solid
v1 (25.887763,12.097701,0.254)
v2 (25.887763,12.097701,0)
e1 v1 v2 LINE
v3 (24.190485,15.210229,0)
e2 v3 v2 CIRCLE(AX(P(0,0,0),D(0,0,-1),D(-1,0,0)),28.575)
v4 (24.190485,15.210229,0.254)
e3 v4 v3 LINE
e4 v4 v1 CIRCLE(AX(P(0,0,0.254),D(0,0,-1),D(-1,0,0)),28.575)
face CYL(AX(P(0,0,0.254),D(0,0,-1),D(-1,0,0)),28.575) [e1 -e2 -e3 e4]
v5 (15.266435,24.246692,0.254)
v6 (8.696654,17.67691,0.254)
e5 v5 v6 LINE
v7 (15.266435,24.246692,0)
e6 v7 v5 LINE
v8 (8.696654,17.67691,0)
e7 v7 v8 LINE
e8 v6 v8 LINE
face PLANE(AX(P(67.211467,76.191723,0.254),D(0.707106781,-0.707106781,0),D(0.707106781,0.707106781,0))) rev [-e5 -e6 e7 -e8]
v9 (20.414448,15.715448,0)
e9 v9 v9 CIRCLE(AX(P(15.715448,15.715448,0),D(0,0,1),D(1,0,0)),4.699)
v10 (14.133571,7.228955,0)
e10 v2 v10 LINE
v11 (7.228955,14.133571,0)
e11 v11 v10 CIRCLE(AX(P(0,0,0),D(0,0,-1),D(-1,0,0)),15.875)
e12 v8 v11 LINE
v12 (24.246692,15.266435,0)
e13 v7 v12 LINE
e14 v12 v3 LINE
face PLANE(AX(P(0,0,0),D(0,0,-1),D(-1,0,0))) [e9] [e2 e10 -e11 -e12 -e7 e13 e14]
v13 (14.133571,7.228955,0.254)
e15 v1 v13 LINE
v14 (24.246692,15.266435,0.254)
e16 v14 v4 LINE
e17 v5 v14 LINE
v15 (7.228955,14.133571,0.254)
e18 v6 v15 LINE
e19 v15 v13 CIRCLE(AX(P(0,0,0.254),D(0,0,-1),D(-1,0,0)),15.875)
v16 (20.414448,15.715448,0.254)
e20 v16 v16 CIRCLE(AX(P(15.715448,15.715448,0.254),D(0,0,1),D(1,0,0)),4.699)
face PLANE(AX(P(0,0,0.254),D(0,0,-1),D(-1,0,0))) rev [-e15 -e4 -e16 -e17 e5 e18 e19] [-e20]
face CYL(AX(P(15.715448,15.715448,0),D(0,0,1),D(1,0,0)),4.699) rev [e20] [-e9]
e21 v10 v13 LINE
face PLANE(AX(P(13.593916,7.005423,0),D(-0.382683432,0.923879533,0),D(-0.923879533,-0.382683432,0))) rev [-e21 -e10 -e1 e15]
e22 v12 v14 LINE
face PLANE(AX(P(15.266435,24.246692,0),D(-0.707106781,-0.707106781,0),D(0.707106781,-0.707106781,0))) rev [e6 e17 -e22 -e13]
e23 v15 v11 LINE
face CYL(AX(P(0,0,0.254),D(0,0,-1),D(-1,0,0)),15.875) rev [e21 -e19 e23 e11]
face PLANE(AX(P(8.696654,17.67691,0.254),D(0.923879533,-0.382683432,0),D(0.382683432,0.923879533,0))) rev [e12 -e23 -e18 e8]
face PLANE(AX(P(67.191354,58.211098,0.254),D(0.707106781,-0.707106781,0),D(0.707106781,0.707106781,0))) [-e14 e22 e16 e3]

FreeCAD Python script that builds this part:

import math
import FreeCAD as App
import Part
import Sketcher
from FreeCAD import Vector
Q = App.Units.Quantity

doc = App.newDocument("Part")
body = doc.addObject("PartDesign::Body", "Body")

# Sketch on XY plane
sketch1 = body.newObject("Sketcher::SketchObject", "Sketch")
sketch1.AttachmentSupport = (doc.getObject("XY_Plane"), [""])
sketch1.MapMode = "FlatFace"
sketch1.addGeometry(Part.LineSegment(Vector(67.2, 76.2, 0), Vector(8.7, 17.7, 0)), False)
sketch1.addGeometry(Part.LineSegment(Vector(8.7, 17.7, 0), Vector(7.2, 14.1, 0)), False)
sketch1.addGeometry(Part.ArcOfCircle(Part.Circle(Vector(0, 0, 0), Vector(0, 0, 1), 15.9), math.radians(-18), math.radians(63)), False)
sketch1.addGeometry(Part.LineSegment(Vector(15.1, -4.9, 0), Vector(18.6, -6.3, 0)), False)
sketch1.addGeometry(Part.LineSegment(Vector(18.6, -6.3, 0), Vector(101.4, -6.3, 0)), False)
sketch1.addGeometry(Part.ArcOfCircle(Part.Circle(Vector(0, 0, 0), Vector(0, 0, 1), 101.6), math.radians(-4), math.radians(49)), False)
sketch1.addGeometry(Part.ArcOfCircle(Part.Circle(Vector(0, 0, 0), Vector(0, 0, 1), 88.9), math.radians(4), math.radians(41)), False)
sketch1.addGeometry(Part.LineSegment(Vector(88.7, 6.3, 0), Vector(27.9, 6.3, 0)), False)
sketch1.addGeometry(Part.ArcOfCircle(Part.Circle(Vector(0, 0, 0), Vector(0, 0, 1), 28.6), math.radians(12.84), math.radians(32.16)), False)
sketch1.addGeometry(Part.LineSegment(Vector(24.2, 15.2, 0), Vector(67.2, 58.2, 0)), False)
sketch1.addConstraint(Sketcher.Constraint("Coincident", 0, 2, 1, 1))
sketch1.addConstraint(Sketcher.Constraint("Coincident", 1, 2, 2, 2))
sketch1.addConstraint(Sketcher.Constraint("Coincident", 2, 1, 3, 1))
sketch1.addConstraint(Sketcher.Constraint("Coincident", 3, 2, 4, 1))
sketch1.addConstraint(Sketcher.Constraint("Coincident", 4, 2, 5, 1))
sketch1.addConstraint(Sketcher.Constraint("Coincident", 5, 2, 0, 1))
sketch1.addConstraint(Sketcher.Constraint("Coincident", 6, 1, 7, 1))
sketch1.addConstraint(Sketcher.Constraint("Coincident", 7, 2, 8, 1))
sketch1.addConstraint(Sketcher.Constraint("Coincident", 8, 2, 9, 1))
sketch1.addConstraint(Sketcher.Constraint("Coincident", 9, 2, 6, 2))
sketch1.addConstraint(Sketcher.Constraint("Horizontal", 4))
sketch1.addConstraint(Sketcher.Constraint("Horizontal", 7))
sketch1.addConstraint(Sketcher.Constraint("Coincident", 2, 3, -1, 1))
sketch1.addConstraint(Sketcher.Constraint("Coincident", 5, 3, -1, 1))
sketch1.addConstraint(Sketcher.Constraint("Coincident", 6, 3, -1, 1))
sketch1.addConstraint(Sketcher.Constraint("Coincident", 8, 3, -1, 1))
sketch1.addConstraint(Sketcher.Constraint("Perpendicular", 1, 3))
sketch1.addConstraint(Sketcher.Constraint("Parallel", 0, 9))
sketch1.addConstraint(Sketcher.Constraint("Equal", 1, 3))
sketch1.addConstraint(Sketcher.Constraint("Radius", 5, Q("4 in")))
sketch1.addConstraint(Sketcher.Constraint("Radius", 6, Q("3.5 in")))
sketch1.addConstraint(Sketcher.Constraint("Angle", 0, Q("-135 deg")))
sketch1.addConstraint(Sketcher.Constraint("Radius", 2, Q("0.625 in")))
sketch1.addConstraint(Sketcher.Constraint("Radius", 8, Q("1.125 in")))
sketch1.addConstraint(Sketcher.Constraint("Angle", 1, Q("-112.5 deg")))
sketch1.addConstraint(Sketcher.Constraint("DistanceY", 4, 2, 6, 1, Q("0.5 in")))
sketch1.addConstraint(Sketcher.Constraint("DistanceY", 3, 2, -1, 1, Q("0.25 in")))
sketch1.addConstraint(Sketcher.Constraint("DistanceY", 2, 1, -1, 1, 4.882301))
sketch1.addConstraint(Sketcher.Constraint("DistanceY", -1, 1, 9, 2, 58.211098))
sketch1.addConstraint(Sketcher.Constraint("DistanceX", 5, 2, 4, 2, 34.189901))
pad1 = body.newObject("PartDesign::Pad", "Pad")
pad1.Profile = sketch1
pad1.Length = Q("0.01 in")

# Sketch on XY plane
sketch2 = body.newObject("Sketcher::SketchObject", "Sketch001")
sketch2.AttachmentSupport = (doc.getObject("XY_Plane"), [""])
sketch2.MapMode = "FlatFace"
sketch2.AttachmentOffset = App.Placement(Vector(0, 0, 0.01 * 25.4), App.Rotation())
sketch2.addGeometry(Part.Circle(Vector(22.2, 0, 0), Vector(0, 0, 1), 4.7), False)
sketch2.addGeometry(Part.Circle(Vector(36.2, 0, 0), Vector(0, 0, 1), 4.7), False)
sketch2.addGeometry(Part.Circle(Vector(61.7, 0, 0), Vector(0, 0, 1), 4.7), False)
sketch2.addGeometry(Part.Circle(Vector(75.7, 0, 0), Vector(0, 0, 1), 4.7), False)
sketch2.addGeometry(Part.Circle(Vector(95.2, 0, 0), Vector(0, 0, 1), 4.7), False)
sketch2.addGeometry(Part.Circle(Vector(15.7, 15.7, 0), Vector(0, 0, 1), 4.7), False)
sketch2.addGeometry(Part.Circle(Vector(25.6, 25.6, 0), Vector(0, 0, 1), 4.7), False)
sketch2.addGeometry(Part.Circle(Vector(43.6, 43.6, 0), Vector(0, 0, 1), 4.7), False)
sketch2.addGeometry(Part.Circle(Vector(53.5, 53.5, 0), Vector(0, 0, 1), 4.7), False)
sketch2.addGeometry(Part.Circle(Vector(92, 24.7, 0), Vector(0, 0, 1), 4.7), False)
sketch2.addGeometry(Part.Circle(Vector(82.5, 47.6, 0), Vector(0, 0, 1), 4.7), False)
sketch2.addGeometry(Part.Circle(Vector(67.4, 67.4, 0), Vector(0, 0, 1), 4.7), False)
sketch2.addConstraint(Sketcher.Constraint("Equal", 0, 1))
sketch2.addConstraint(Sketcher.Constraint("Equal", 1, 2))
sketch2.addConstraint(Sketcher.Constraint("Equal", 2, 3))
sketch2.addConstraint(Sketcher.Constraint("Equal", 3, 4))
sketch2.addConstraint(Sketcher.Constraint("Equal", 4, 5))
sketch2.addConstraint(Sketcher.Constraint("Equal", 5, 6))
sketch2.addConstraint(Sketcher.Constraint("Equal", 6, 7))
sketch2.addConstraint(Sketcher.Constraint("Equal", 7, 8))
sketch2.addConstraint(Sketcher.Constraint("Equal", 8, 9))
sketch2.addConstraint(Sketcher.Constraint("Equal", 9, 10))
sketch2.addConstraint(Sketcher.Constraint("Equal", 10, 11))
sketch2.addConstraint(Sketcher.Constraint("PointOnObject", 0, 3, -1))
sketch2.addConstraint(Sketcher.Constraint("PointOnObject", 1, 3, -1))
sketch2.addConstraint(Sketcher.Constraint("PointOnObject", 2, 3, -1))
sketch2.addConstraint(Sketcher.Constraint("PointOnObject", 3, 3, -1))
sketch2.addConstraint(Sketcher.Constraint("PointOnObject", 4, 3, -1))
sketch2.addConstraint(Sketcher.Constraint("Diameter", 0, Q("0.37 in")))
sketch2.addConstraint(Sketcher.Constraint("DistanceX", -1, 1, 2, 3, Q("2.43 in")))
sketch2.addConstraint(Sketcher.Constraint("DistanceX", -1, 1, 3, 3, Q("2.98 in")))
sketch2.addConstraint(Sketcher.Constraint("DistanceX", -1, 1, 4, 3, Q("3.75 in")))
sketch2.addConstraint(Sketcher.Constraint("DistanceX", 0, 3, 1, 3, Q("0.55 in")))
sketch2.addConstraint(Sketcher.Constraint("DistanceX", -1, 1, 0, 3, Q("0.875 in")))
sketch2.addConstraint(Sketcher.Constraint("DistanceY", -1, 1, 10, 3, Q("1.875 in")))
sketch2.addConstraint(Sketcher.Constraint("DistanceX", 11, 3, 10, 3, 15.136999))
sketch2.addConstraint(Sketcher.Constraint("DistanceX", -1, 1, 5, 3, 15.715448))
sketch2.addConstraint(Sketcher.Constraint("DistanceY", -1, 1, 5, 3, 15.715448))
sketch2.addConstraint(Sketcher.Constraint("DistanceX", -1, 1, 6, 3, 25.59373))
sketch2.addConstraint(Sketcher.Constraint("DistanceY", -1, 1, 6, 3, 25.59373))
sketch2.addConstraint(Sketcher.Constraint("DistanceX", -1, 1, 10, 3, 82.48892))
sketch2.addConstraint(Sketcher.Constraint("DistanceY", -1, 1, 11, 3, 67.351921))
sketch2.addConstraint(Sketcher.Constraint("DistanceX", 7, 3, 8, 3, 9.878282))
sketch2.addConstraint(Sketcher.Constraint("DistanceY", 7, 3, 8, 3, 9.878282))
sketch2.addConstraint(Sketcher.Constraint("DistanceX", 5, 3, 8, 3, 37.806878))
sketch2.addConstraint(Sketcher.Constraint("DistanceY", 5, 3, 8, 3, 37.806878))
sketch2.addConstraint(Sketcher.Constraint("DistanceX", 8, 3, 9, 3, 38.482108))
sketch2.addConstraint(Sketcher.Constraint("DistanceY", 9, 3, 7, 3, 18.991531))
pocket1 = body.newObject("PartDesign::Pocket", "Pocket")
pocket1.Profile = sketch2
pocket1.Type = "ThroughAll"

# Sketch on XY plane
sketch3 = body.newObject("Sketcher::SketchObject", "Sketch002")
sketch3.AttachmentSupport = (doc.getObject("XY_Plane"), [""])
sketch3.MapMode = "FlatFace"
sketch3.AttachmentOffset = App.Placement(Vector(0, 0, 0.01 * 25.4), App.Rotation())
sketch3.addGeometry(Part.LineSegment(Vector(17.1, 26, 0), Vector(15.3, 24.2, 0)), False)
sketch3.addGeometry(Part.LineSegment(Vector(15.3, 24.2, 0), Vector(15.7, 23.8, 0)), False)
sketch3.addGeometry(Part.LineSegment(Vector(15.7, 23.8, 0), Vector(17.5, 25.6, 0)), False)
sketch3.addGeometry(Part.LineSegment(Vector(17.5, 25.6, 0), Vector(17.1, 26, 0)), False)
sketch3.addGeometry(Part.LineSegment(Vector(45, 54, 0), Vector(43.2, 52.2, 0)), False)
sketch3.addGeometry(Part.LineSegment(Vector(43.2, 52.2, 0), Vector(43.6, 51.7, 0)), False)
sketch3.addGeometry(Part.LineSegment(Vector(43.6, 51.7, 0), Vector(45.4, 53.5, 0)), False)
sketch3.addGeometry(Part.LineSegment(Vector(45.4, 53.5, 0), Vector(45, 54, 0)), False)
sketch3.addGeometry(Part.LineSegment(Vector(27.9, -5.7, 0), Vector(27.9, -6.3, 0)), False)
sketch3.addGeometry(Part.LineSegment(Vector(27.9, -6.3, 0), Vector(30.5, -6.3, 0)), False)
sketch3.addGeometry(Part.LineSegment(Vector(30.5, -6.3, 0), Vector(30.5, -5.7, 0)), False)
sketch3.addGeometry(Part.LineSegment(Vector(30.5, -5.7, 0), Vector(27.9, -5.7, 0)), False)
sketch3.addGeometry(Part.LineSegment(Vector(67.4, -5.7, 0), Vector(67.4, -6.3, 0)), False)
sketch3.addGeometry(Part.LineSegment(Vector(67.4, -6.3, 0), Vector(70, -6.3, 0)), False)
sketch3.addGeometry(Part.LineSegment(Vector(70, -6.3, 0), Vector(70, -5.7, 0)), False)
sketch3.addGeometry(Part.LineSegment(Vector(70, -5.7, 0), Vector(67.4, -5.7, 0)), False)
sketch3.addGeometry(Part.LineSegment(Vector(31, 40, 0), Vector(29.2, 38.2, 0)), False)
sketch3.addGeometry(Part.LineSegment(Vector(29.2, 38.2, 0), Vector(29.7, 37.8, 0)), False)
sketch3.addGeometry(Part.LineSegment(Vector(29.7, 37.8, 0), Vector(31.5, 39.6, 0)), False)
sketch3.addGeometry(Part.LineSegment(Vector(31.5, 39.6, 0), Vector(31, 40, 0)), False)
sketch3.addGeometry(Part.LineSegment(Vector(56.8, 65.8, 0), Vector(55, 64, 0)), False)
sketch3.addGeometry(Part.LineSegment(Vector(55, 64, 0), Vector(55.5, 63.6, 0)), False)
sketch3.addGeometry(Part.LineSegment(Vector(55.5, 63.6, 0), Vector(57.3, 65.4, 0)), False)
sketch3.addGeometry(Part.LineSegment(Vector(57.3, 65.4, 0), Vector(56.8, 65.8, 0)), False)
sketch3.addGeometry(Part.LineSegment(Vector(47.7, -5.7, 0), Vector(47.7, -6.3, 0)), False)
sketch3.addGeometry(Part.LineSegment(Vector(47.7, -6.3, 0), Vector(50.2, -6.3, 0)), False)
sketch3.addGeometry(Part.LineSegment(Vector(50.2, -6.3, 0), Vector(50.2, -5.7, 0)), False)
sketch3.addGeometry(Part.LineSegment(Vector(50.2, -5.7, 0), Vector(47.7, -5.7, 0)), False)
sketch3.addGeometry(Part.LineSegment(Vector(84.2, -5.7, 0), Vector(84.2, -6.3, 0)), False)
sketch3.addGeometry(Part.LineSegment(Vector(84.2, -6.3, 0), Vector(86.7, -6.3, 0)), False)
sketch3.addGeometry(Part.LineSegment(Vector(86.7, -6.3, 0), Vector(86.7, -5.7, 0)), False)
sketch3.addGeometry(Part.LineSegment(Vector(86.7, -5.7, 0), Vector(84.2, -5.7, 0)), False)
sketch3.addGeometry(Part.LineSegment(Vector(99.9, 14.4, 0), Vector(100.3, 11.9, 0)), False)
sketch3.addGeometry(Part.LineSegment(Vector(100.3, 11.9, 0), Vector(101.5, 12.1, 0)), False)
sketch3.addGeometry(Part.LineSegment(Vector(101.5, 12.1, 0), Vector(101.2, 14.6, 0)), False)
sketch3.addGeometry(Part.LineSegment(Vector(101.2, 14.6, 0), Vector(99.9, 14.4, 0)), False)
sketch3.addGeometry(Part.LineSegment(Vector(93.8, 37.5, 0), Vector(94.9, 38, 0)), False)
sketch3.addGeometry(Part.LineSegment(Vector(94.9, 38, 0), Vector(94, 40.3, 0)), False)
sketch3.addGeometry(Part.LineSegment(Vector(94, 40.3, 0), Vector(92.8, 39.8, 0)), False)
sketch3.addGeometry(Part.LineSegment(Vector(92.8, 39.8, 0), Vector(93.8, 37.5, 0)), False)
sketch3.addGeometry(Part.LineSegment(Vector(79.3, 62.5, 0), Vector(80.9, 60.5, 0)), False)
sketch3.addGeometry(Part.LineSegment(Vector(80.9, 60.5, 0), Vector(81.9, 61.2, 0)), False)
sketch3.addGeometry(Part.LineSegment(Vector(81.9, 61.2, 0), Vector(80.3, 63.2, 0)), False)
sketch3.addGeometry(Part.LineSegment(Vector(80.3, 63.2, 0), Vector(79.3, 62.5, 0)), False)
sketch3.addGeometry(Part.LineSegment(Vector(13.6, 7, 0), Vector(14.6, 4.7, 0)), False)
sketch3.addGeometry(Part.LineSegment(Vector(14.6, 4.7, 0), Vector(15.7, 5.1, 0)), False)
sketch3.addGeometry(Part.LineSegment(Vector(15.7, 5.1, 0), Vector(14.8, 7.5, 0)), False)
sketch3.addGeometry(Part.LineSegment(Vector(14.8, 7.5, 0), Vector(13.6, 7, 0)), False)
sketch3.addConstraint(Sketcher.Constraint("Coincident", 0, 2, 1, 1))
sketch3.addConstraint(Sketcher.Constraint("Coincident", 1, 2, 2, 1))
sketch3.addConstraint(Sketcher.Constraint("Coincident", 2, 2, 3, 1))
sketch3.addConstraint(Sketcher.Constraint("Coincident", 3, 2, 0, 1))
sketch3.addConstraint(Sketcher.Constraint("Coincident", 4, 2, 5, 1))
sketch3.addConstraint(Sketcher.Constraint("Coincident", 5, 2, 6, 1))
sketch3.addConstraint(Sketcher.Constraint("Coincident", 6, 2, 7, 1))
sketch3.addConstraint(Sketcher.Constraint("Coincident", 7, 2, 4, 1))
sketch3.addConstraint(Sketcher.Constraint("Coincident", 8, 2, 9, 1))
sketch3.addConstraint(Sketcher.Constraint("Coincident", 9, 2, 10, 1))
sketch3.addConstraint(Sketcher.Constraint("Coincident", 10, 2, 11, 1))
sketch3.addConstraint(Sketcher.Constraint("Coincident", 11, 2, 8, 1))
sketch3.addConstraint(Sketcher.Constraint("Coincident", 12, 2, 13, 1))
sketch3.addConstraint(Sketcher.Constraint("Coincident", 13, 2, 14, 1))
sketch3.addConstraint(Sketcher.Constraint("Coincident", 14, 2, 15, 1))
sketch3.addConstraint(Sketcher.Constraint("Coincident", 15, 2, 12, 1))
sketch3.addConstraint(Sketcher.Constraint("Coincident", 16, 2, 17, 1))
sketch3.addConstraint(Sketcher.Constraint("Coincident", 17, 2, 18, 1))
sketch3.addConstraint(Sketcher.Constraint("Coincident", 18, 2, 19, 1))
sketch3.addConstraint(Sketcher.Constraint("Coincident", 19, 2, 16, 1))
sketch3.addConstraint(Sketcher.Constraint("Coincident", 20, 2, 21, 1))
sketch3.addConstraint(Sketcher.Constraint("Coincident", 21, 2, 22, 1))
sketch3.addConstraint(Sketcher.Constraint("Coincident", 22, 2, 23, 1))
sketch3.addConstraint(Sketcher.Constraint("Coincident", 23, 2, 20, 1))
sketch3.addConstraint(Sketcher.Constraint("Coincident", 24, 2, 25, 1))
sketch3.addConstraint(Sketcher.Constraint("Coincident", 25, 2, 26, 1))
sketch3.addConstraint(Sketcher.Constraint("Coincident", 26, 2, 27, 1))
sketch3.addConstraint(Sketcher.Constraint("Coincident", 27, 2, 24, 1))
sketch3.addConstraint(Sketcher.Constraint("Coincident", 28, 2, 29, 1))
sketch3.addConstraint(Sketcher.Constraint("Coincident", 29, 2, 30, 1))
sketch3.addConstraint(Sketcher.Constraint("Coincident", 30, 2, 31, 1))
sketch3.addConstraint(Sketcher.Constraint("Coincident", 31, 2, 28, 1))
sketch3.addConstraint(Sketcher.Constraint("Coincident", 32, 2, 33, 1))
sketch3.addConstraint(Sketcher.Constraint("Coincident", 33, 2, 34, 1))
sketch3.addConstraint(Sketcher.Constraint("Coincident", 34, 2, 35, 1))
sketch3.addConstraint(Sketcher.Constraint("Coincident", 35, 2, 32, 1))
sketch3.addConstraint(Sketcher.Constraint("Coincident", 36, 2, 37, 1))
sketch3.addConstraint(Sketcher.Constraint("Coincident", 37, 2, 38, 1))
sketch3.addConstraint(Sketcher.Constraint("Coincident", 38, 2, 39, 1))
sketch3.addConstraint(Sketcher.Constraint("Coincident", 39, 2, 36, 1))
sketch3.addConstraint(Sketcher.Constraint("Coincident", 40, 2, 41, 1))
sketch3.addConstraint(Sketcher.Constraint("Coincident", 41, 2, 42, 1))
sketch3.addConstraint(Sketcher.Constraint("Coincident", 42, 2, 43, 1))
sketch3.addConstraint(Sketcher.Constraint("Coincident", 43, 2, 40, 1))
sketch3.addConstraint(Sketcher.Constraint("Coincident", 44, 2, 45, 1))
sketch3.addConstraint(Sketcher.Constraint("Coincident", 45, 2, 46, 1))
sketch3.addConstraint(Sketcher.Constraint("Coincident", 46, 2, 47, 1))
sketch3.addConstraint(Sketcher.Constraint("Coincident", 47, 2, 44, 1))
sketch3.addConstraint(Sketcher.Constraint("Vertical", 8))
sketch3.addConstraint(Sketcher.Constraint("Horizontal", 9))
sketch3.addConstraint(Sketcher.Constraint("Vertical", 10))
sketch3.addConstraint(Sketcher.Constraint("Horizontal", 11))
sketch3.addConstraint(Sketcher.Constraint("Vertical", 12))
sketch3.addConstraint(Sketcher.Constraint("Horizontal", 13))
sketch3.addConstraint(Sketcher.Constraint("Vertical", 14))
sketch3.addConstraint(Sketcher.Constraint("Horizontal", 15))
sketch3.addConstraint(Sketcher.Constraint("Vertical", 24))
sketch3.addConstraint(Sketcher.Constraint("Horizontal", 25))
sketch3.addConstraint(Sketcher.Constraint("Vertical", 26))
sketch3.addConstraint(Sketcher.Constraint("Horizontal", 27))
sketch3.addConstraint(Sketcher.Constraint("Vertical", 28))
sketch3.addConstraint(Sketcher.Constraint("Horizontal", 29))
sketch3.addConstraint(Sketcher.Constraint("Vertical", 30))
sketch3.addConstraint(Sketcher.Constraint("Horizontal", 31))
sketch3.addConstraint(Sketcher.Constraint("Perpendicular", 0, 1))
sketch3.addConstraint(Sketcher.Constraint("Perpendicular", 1, 2))
sketch3.addConstraint(Sketcher.Constraint("Perpendicular", 2, 3))
sketch3.addConstraint(Sketcher.Constraint("Perpendicular", 3, 4))
sketch3.addConstraint(Sketcher.Constraint("Perpendicular", 4, 5))
sketch3.addConstraint(Sketcher.Constraint("Perpendicular", 5, 6))
sketch3.addConstraint(Sketcher.Constraint("Perpendicular", 6, 7))
sketch3.addConstraint(Sketcher.Constraint("Perpendicular", 7, 16))
sketch3.addConstraint(Sketcher.Constraint("Perpendicular", 16, 17))
sketch3.addConstraint(Sketcher.Constraint("Perpendicular", 17, 18))
sketch3.addConstraint(Sketcher.Constraint("Perpendicular", 18, 19))
sketch3.addConstraint(Sketcher.Constraint("Perpendicular", 19, 20))
sketch3.addConstraint(Sketcher.Constraint("Perpendicular", 20, 21))
sketch3.addConstraint(Sketcher.Constraint("Perpendicular", 21, 22))
sketch3.addConstraint(Sketcher.Constraint("Perpendicular", 22, 23))
sketch3.addConstraint(Sketcher.Constraint("Perpendicular", 32, 33))
sketch3.addConstraint(Sketcher.Constraint("Perpendicular", 33, 34))
sketch3.addConstraint(Sketcher.Constraint("Perpendicular", 34, 35))
sketch3.addConstraint(Sketcher.Constraint("Perpendicular", 36, 37))
sketch3.addConstraint(Sketcher.Constraint("Perpendicular", 37, 38))
sketch3.addConstraint(Sketcher.Constraint("Perpendicular", 38, 39))
sketch3.addConstraint(Sketcher.Constraint("Perpendicular", 40, 41))
sketch3.addConstraint(Sketcher.Constraint("Perpendicular", 41, 42))
sketch3.addConstraint(Sketcher.Constraint("Perpendicular", 42, 43))
sketch3.addConstraint(Sketcher.Constraint("Parallel", 39, 44))
sketch3.addConstraint(Sketcher.Constraint("Perpendicular", 44, 45))
sketch3.addConstraint(Sketcher.Constraint("Perpendicular", 45, 46))
sketch3.addConstraint(Sketcher.Constraint("Perpendicular", 46, 47))
sketch3.addConstraint(Sketcher.Constraint("Horizontal", 9, 2, 12, 2))
sketch3.addConstraint(Sketcher.Constraint("Horizontal", 11, 2, 14, 2))
sketch3.addConstraint(Sketcher.Constraint("Horizontal", 13, 2, 24, 2))
sketch3.addConstraint(Sketcher.Constraint("Horizontal", 15, 2, 26, 2))
sketch3.addConstraint(Sketcher.Constraint("Horizontal", 25, 2, 28, 2))
sketch3.addConstraint(Sketcher.Constraint("Horizontal", 27, 2, 30, 2))
sketch3.addConstraint(Sketcher.Constraint("Equal", 11, 13))
sketch3.addConstraint(Sketcher.Constraint("Equal", 15, 25))
sketch3.addConstraint(Sketcher.Constraint("Equal", 27, 29))
sketch3.addConstraint(Sketcher.Constraint("Equal", 2, 4))
sketch3.addConstraint(Sketcher.Constraint("Equal", 3, 5))
sketch3.addConstraint(Sketcher.Constraint("Equal", 6, 16))
sketch3.addConstraint(Sketcher.Constraint("Equal", 7, 17))
sketch3.addConstraint(Sketcher.Constraint("Equal", 18, 20))
sketch3.addConstraint(Sketcher.Constraint("Equal", 19, 21))
sketch3.addConstraint(Sketcher.Constraint("Equal", 22, 32))
sketch3.addConstraint(Sketcher.Constraint("Equal", 35, 36))
sketch3.addConstraint(Sketcher.Constraint("Equal", 34, 37))
sketch3.addConstraint(Sketcher.Constraint("Equal", 39, 40))
sketch3.addConstraint(Sketcher.Constraint("Equal", 38, 41))
sketch3.addConstraint(Sketcher.Constraint("Equal", 42, 44))
sketch3.addConstraint(Sketcher.Constraint("Equal", 43, 45))
sketch3.addConstraint(Sketcher.Constraint("DistanceX", 9, 1, 9, 2, Q("0.1 in")))
sketch3.addConstraint(Sketcher.Constraint("Angle", 0, Q("-135 deg")))
sketch3.addConstraint(Sketcher.Constraint("Distance", 0, Q("0.1 in")))
sketch3.addConstraint(Sketcher.Constraint("DistanceX", -1, 1, 8, 2, Q("1.1 in")))
sketch3.addConstraint(Sketcher.Constraint("Angle", 32, Q("-82.5 deg")))
sketch3.addConstraint(Sketcher.Constraint("Angle", 36, Q("22.5 deg")))
sketch3.addConstraint(Sketcher.Constraint("Angle", 40, Q("-52.5 deg")))
sketch3.addConstraint(Sketcher.Constraint("Distance", 33, Q("0.05 in")))
sketch3.addConstraint(Sketcher.Constraint("DistanceY", 8, 2, 8, 1, Q("0.025 in")))
sketch3.addConstraint(Sketcher.Constraint("DistanceY", 8, 2, -1, 1, Q("0.25 in")))
sketch3.addConstraint(Sketcher.Constraint("DistanceX", 13, 2, 28, 2, Q("0.56 in")))
sketch3.addConstraint(Sketcher.Constraint("Distance", 1, Q("0.025 in")))
sketch3.addConstraint(Sketcher.Constraint("DistanceX", -1, 1, 12, 2, Q("2.655 in")))
sketch3.addConstraint(Sketcher.Constraint("DistanceX", -1, 1, 24, 2, Q("1.8775 in")))
sketch3.addConstraint(Sketcher.Constraint("DistanceX", -1, 1, 2, 2, 17.511499))
sketch3.addConstraint(Sketcher.Constraint("DistanceX", -1, 1, 32, 2, 100.266999))
sketch3.addConstraint(Sketcher.Constraint("DistanceX", 16, 2, 4, 2, 13.964298))
sketch3.addConstraint(Sketcher.Constraint("DistanceY", 16, 2, 4, 2, 13.964298))
sketch3.addConstraint(Sketcher.Constraint("DistanceX", 0, 2, 16, 2, 13.964298))
sketch3.addConstraint(Sketcher.Constraint("DistanceY", 0, 2, 16, 2, 13.964298))
sketch3.addConstraint(Sketcher.Constraint("DistanceY", 6, 2, 20, 2, 10.5069))
sketch3.addConstraint(Sketcher.Constraint("DistanceX", 7, 2, 21, 2, 10.5069))
sketch3.addConstraint(Sketcher.Constraint("DistanceY", 35, 2, 36, 2, 23.512602))
sketch3.addConstraint(Sketcher.Constraint("DistanceX", 36, 2, 33, 2, 6.587302))
sketch3.addConstraint(Sketcher.Constraint("DistanceY", 37, 2, 41, 2, 20.932198))
sketch3.addConstraint(Sketcher.Constraint("DistanceY", 41, 2, 22, 2, 4.147099))
sketch3.addConstraint(Sketcher.Constraint("DistanceY", 46, 2, 2, 2, 18.102299))
sketch3.addConstraint(Sketcher.Constraint("DistanceY", -1, 1, 0, 2, 24.246692))
sketch3.addConstraint(Sketcher.Constraint("DistanceX", -1, 1, 42, 2, 80.335352))
sketch3.addConstraint(Sketcher.Constraint("DistanceX", -1, 1, 45, 2, 15.739259))
pocket2 = body.newObject("PartDesign::Pocket", "Pocket001")
pocket2.Profile = sketch3
pocket2.Type = "ThroughAll"

# Sketch on XY plane
sketch4 = body.newObject("Sketcher::SketchObject", "Sketch003")
sketch4.AttachmentSupport = (doc.getObject("XY_Plane"), [""])
sketch4.MapMode = "FlatFace"
sketch4.AttachmentOffset = App.Placement(Vector(0, 0, 0.01 * 25.4), App.Rotation())
sketch4.addGeometry(Part.LineSegment(Vector(-6, 90, 0), Vector(-6, -20, 0)), False)
sketch4.addGeometry(Part.LineSegment(Vector(-6, -20, 0), Vector(115, -20, 0)), False)
sketch4.addGeometry(Part.LineSegment(Vector(115, -20, 0), Vector(115, 90, 0)), False)
sketch4.addGeometry(Part.LineSegment(Vector(115, 90, 0), Vector(-6, 90, 0)), False)
sketch4.addGeometry(Part.LineSegment(Vector(27, 13, 0), Vector(8, 5, 0)), False)
sketch4.addGeometry(Part.LineSegment(Vector(8, 5, 0), Vector(-1, 14, 0)), False)
sketch4.addGeometry(Part.LineSegment(Vector(-1, 14, 0), Vector(13, 27, 0)), False)
sketch4.addGeometry(Part.LineSegment(Vector(13, 27, 0), Vector(27, 13, 0)), False)
sketch4.addConstraint(Sketcher.Constraint("Coincident", 0, 2, 1, 1))
sketch4.addConstraint(Sketcher.Constraint("Coincident", 1, 2, 2, 1))
sketch4.addConstraint(Sketcher.Constraint("Coincident", 2, 2, 3, 1))
sketch4.addConstraint(Sketcher.Constraint("Coincident", 3, 2, 0, 1))
sketch4.addConstraint(Sketcher.Constraint("Coincident", 4, 2, 5, 1))
sketch4.addConstraint(Sketcher.Constraint("Coincident", 5, 2, 6, 1))
sketch4.addConstraint(Sketcher.Constraint("Coincident", 6, 2, 7, 1))
sketch4.addConstraint(Sketcher.Constraint("Coincident", 7, 2, 4, 1))
sketch4.addConstraint(Sketcher.Constraint("Vertical", 0))
sketch4.addConstraint(Sketcher.Constraint("Horizontal", 1))
sketch4.addConstraint(Sketcher.Constraint("Vertical", 2))
sketch4.addConstraint(Sketcher.Constraint("Horizontal", 3))
sketch4.addConstraint(Sketcher.Constraint("Perpendicular", 5, 6))
sketch4.addConstraint(Sketcher.Constraint("Perpendicular", 6, 7))
sketch4.addConstraint(Sketcher.Constraint("Equal", 4, 7))
sketch4.addConstraint(Sketcher.Constraint("Angle", 5, Q("135 deg")))
sketch4.addConstraint(Sketcher.Constraint("Distance", 4, Q("0.8 in")))
sketch4.addConstraint(Sketcher.Constraint("Angle", 4, Q("-157.5 deg")))
sketch4.addConstraint(Sketcher.Constraint("DistanceX", 1, 1, 1, 2, 121.447))
sketch4.addConstraint(Sketcher.Constraint("DistanceY", 0, 2, 0, 1, 109.618))
sketch4.addConstraint(Sketcher.Constraint("DistanceX", 0, 2, -1, 1, 6.309))
sketch4.addConstraint(Sketcher.Constraint("DistanceY", 0, 2, -1, 1, 19.888))
sketch4.addConstraint(Sketcher.Constraint("DistanceX", -1, 1, 4, 2, 8.194752))
sketch4.addConstraint(Sketcher.Constraint("DistanceY", -1, 1, 4, 2, 4.769016))
pocket3 = body.newObject("PartDesign::Pocket", "Pocket002")
pocket3.Profile = sketch4
pocket3.Type = "ThroughAll"

doc.recompute()
